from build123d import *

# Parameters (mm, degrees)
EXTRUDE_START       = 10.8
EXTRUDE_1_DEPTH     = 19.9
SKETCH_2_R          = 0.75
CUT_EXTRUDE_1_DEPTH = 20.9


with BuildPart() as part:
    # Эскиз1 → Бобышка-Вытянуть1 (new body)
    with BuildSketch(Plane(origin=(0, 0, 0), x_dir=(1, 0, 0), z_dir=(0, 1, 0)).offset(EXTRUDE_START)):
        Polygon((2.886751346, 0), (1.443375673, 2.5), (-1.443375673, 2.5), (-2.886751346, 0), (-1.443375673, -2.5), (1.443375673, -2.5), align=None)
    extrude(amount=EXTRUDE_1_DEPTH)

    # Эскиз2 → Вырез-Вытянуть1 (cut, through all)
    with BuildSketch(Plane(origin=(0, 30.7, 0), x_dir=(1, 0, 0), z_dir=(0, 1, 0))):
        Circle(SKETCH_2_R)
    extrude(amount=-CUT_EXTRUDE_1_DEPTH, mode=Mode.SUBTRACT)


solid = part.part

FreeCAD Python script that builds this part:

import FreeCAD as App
import Part
import Sketcher
Q = App.Units.Quantity


def add_polygon(sketch, points):
    """Adds a closed chain of lines whose ends are joined by coincident constraints."""
    first, n = sketch.GeometryCount, len(points)
    for a, b in zip(points, points[1:] + points[:1]):
        sketch.addGeometry(Part.LineSegment(App.Vector(*a, 0), App.Vector(*b, 0)), False)
    for i in range(n):
        sketch.addConstraint(Sketcher.Constraint("Coincident", first + i, 2, first + (i + 1) % n, 1))

doc = App.newDocument("Part")
body = doc.addObject("PartDesign::Body", "Body")

# Sketch on XZ plane
sketch1 = doc.addObject("Sketcher::SketchObject", "Sketch")
body.addObject(sketch1)
sketch1.AttachmentSupport = (doc.XZ_Plane, [""])
sketch1.MapMode = "FlatFace"
sketch1.AttachmentOffset = App.Placement(App.Vector(0, 0, -10.8), App.Rotation())
add_polygon(sketch1, [(2.886751, 0), (1.443376, -2.5), (-1.443376, -2.5), (-2.886751, 0), (-1.443376, 2.5), (1.443376, 2.5)])  # lines 0-5
sketch1.addConstraint([
    Sketcher.Constraint("Horizontal", 1),
    Sketcher.Constraint("Horizontal", 4),
    Sketcher.Constraint("Symmetric", 0, 2, 3, 2, -1, 1),
    Sketcher.Constraint("Symmetric", 2, 2, 5, 2, -1, 1),
    Sketcher.Constraint("PointOnObject", 2, 2, -1),
    Sketcher.Constraint("Parallel", 2, 5),
    Sketcher.Constraint("Vertical", 1, 2, 3, 2),
    Sketcher.Constraint("Angle", 0, Q("-120 deg")),
    Sketcher.Constraint("DistanceY", 1, 2, 3, 2, Q("5 mm")),
    Sketcher.Constraint("DistanceX", 1, 2, 1, 1, Q("2.886751 mm")),
])
pad1 = doc.addObject("PartDesign::Pad", "Pad")
body.addObject(pad1)
pad1.Profile = sketch1
pad1.Length = 19.9
pad1.Reversed = True

# Sketch on XZ plane
sketch2 = doc.addObject("Sketcher::SketchObject", "Sketch001")
body.addObject(sketch2)
sketch2.AttachmentSupport = (doc.XZ_Plane, [""])
sketch2.MapMode = "FlatFace"
sketch2.AttachmentOffset = App.Placement(App.Vector(0, 0, -30.7), App.Rotation())
sketch2.addGeometry(Part.Circle(App.Vector(0, 0, 0), App.Vector(0, 0, 1), 0.75), False)
sketch2.addConstraint([
    Sketcher.Constraint("Coincident", 0, 3, -1, 1),
    Sketcher.Constraint("Diameter", 0, Q("1.5 mm")),
])
pocket1 = doc.addObject("PartDesign::Pocket", "Pocket")
body.addObject(pocket1)
pocket1.Profile = sketch2
pocket1.Type = "ThroughAll"
pocket1.Reversed = True

doc.recompute()
